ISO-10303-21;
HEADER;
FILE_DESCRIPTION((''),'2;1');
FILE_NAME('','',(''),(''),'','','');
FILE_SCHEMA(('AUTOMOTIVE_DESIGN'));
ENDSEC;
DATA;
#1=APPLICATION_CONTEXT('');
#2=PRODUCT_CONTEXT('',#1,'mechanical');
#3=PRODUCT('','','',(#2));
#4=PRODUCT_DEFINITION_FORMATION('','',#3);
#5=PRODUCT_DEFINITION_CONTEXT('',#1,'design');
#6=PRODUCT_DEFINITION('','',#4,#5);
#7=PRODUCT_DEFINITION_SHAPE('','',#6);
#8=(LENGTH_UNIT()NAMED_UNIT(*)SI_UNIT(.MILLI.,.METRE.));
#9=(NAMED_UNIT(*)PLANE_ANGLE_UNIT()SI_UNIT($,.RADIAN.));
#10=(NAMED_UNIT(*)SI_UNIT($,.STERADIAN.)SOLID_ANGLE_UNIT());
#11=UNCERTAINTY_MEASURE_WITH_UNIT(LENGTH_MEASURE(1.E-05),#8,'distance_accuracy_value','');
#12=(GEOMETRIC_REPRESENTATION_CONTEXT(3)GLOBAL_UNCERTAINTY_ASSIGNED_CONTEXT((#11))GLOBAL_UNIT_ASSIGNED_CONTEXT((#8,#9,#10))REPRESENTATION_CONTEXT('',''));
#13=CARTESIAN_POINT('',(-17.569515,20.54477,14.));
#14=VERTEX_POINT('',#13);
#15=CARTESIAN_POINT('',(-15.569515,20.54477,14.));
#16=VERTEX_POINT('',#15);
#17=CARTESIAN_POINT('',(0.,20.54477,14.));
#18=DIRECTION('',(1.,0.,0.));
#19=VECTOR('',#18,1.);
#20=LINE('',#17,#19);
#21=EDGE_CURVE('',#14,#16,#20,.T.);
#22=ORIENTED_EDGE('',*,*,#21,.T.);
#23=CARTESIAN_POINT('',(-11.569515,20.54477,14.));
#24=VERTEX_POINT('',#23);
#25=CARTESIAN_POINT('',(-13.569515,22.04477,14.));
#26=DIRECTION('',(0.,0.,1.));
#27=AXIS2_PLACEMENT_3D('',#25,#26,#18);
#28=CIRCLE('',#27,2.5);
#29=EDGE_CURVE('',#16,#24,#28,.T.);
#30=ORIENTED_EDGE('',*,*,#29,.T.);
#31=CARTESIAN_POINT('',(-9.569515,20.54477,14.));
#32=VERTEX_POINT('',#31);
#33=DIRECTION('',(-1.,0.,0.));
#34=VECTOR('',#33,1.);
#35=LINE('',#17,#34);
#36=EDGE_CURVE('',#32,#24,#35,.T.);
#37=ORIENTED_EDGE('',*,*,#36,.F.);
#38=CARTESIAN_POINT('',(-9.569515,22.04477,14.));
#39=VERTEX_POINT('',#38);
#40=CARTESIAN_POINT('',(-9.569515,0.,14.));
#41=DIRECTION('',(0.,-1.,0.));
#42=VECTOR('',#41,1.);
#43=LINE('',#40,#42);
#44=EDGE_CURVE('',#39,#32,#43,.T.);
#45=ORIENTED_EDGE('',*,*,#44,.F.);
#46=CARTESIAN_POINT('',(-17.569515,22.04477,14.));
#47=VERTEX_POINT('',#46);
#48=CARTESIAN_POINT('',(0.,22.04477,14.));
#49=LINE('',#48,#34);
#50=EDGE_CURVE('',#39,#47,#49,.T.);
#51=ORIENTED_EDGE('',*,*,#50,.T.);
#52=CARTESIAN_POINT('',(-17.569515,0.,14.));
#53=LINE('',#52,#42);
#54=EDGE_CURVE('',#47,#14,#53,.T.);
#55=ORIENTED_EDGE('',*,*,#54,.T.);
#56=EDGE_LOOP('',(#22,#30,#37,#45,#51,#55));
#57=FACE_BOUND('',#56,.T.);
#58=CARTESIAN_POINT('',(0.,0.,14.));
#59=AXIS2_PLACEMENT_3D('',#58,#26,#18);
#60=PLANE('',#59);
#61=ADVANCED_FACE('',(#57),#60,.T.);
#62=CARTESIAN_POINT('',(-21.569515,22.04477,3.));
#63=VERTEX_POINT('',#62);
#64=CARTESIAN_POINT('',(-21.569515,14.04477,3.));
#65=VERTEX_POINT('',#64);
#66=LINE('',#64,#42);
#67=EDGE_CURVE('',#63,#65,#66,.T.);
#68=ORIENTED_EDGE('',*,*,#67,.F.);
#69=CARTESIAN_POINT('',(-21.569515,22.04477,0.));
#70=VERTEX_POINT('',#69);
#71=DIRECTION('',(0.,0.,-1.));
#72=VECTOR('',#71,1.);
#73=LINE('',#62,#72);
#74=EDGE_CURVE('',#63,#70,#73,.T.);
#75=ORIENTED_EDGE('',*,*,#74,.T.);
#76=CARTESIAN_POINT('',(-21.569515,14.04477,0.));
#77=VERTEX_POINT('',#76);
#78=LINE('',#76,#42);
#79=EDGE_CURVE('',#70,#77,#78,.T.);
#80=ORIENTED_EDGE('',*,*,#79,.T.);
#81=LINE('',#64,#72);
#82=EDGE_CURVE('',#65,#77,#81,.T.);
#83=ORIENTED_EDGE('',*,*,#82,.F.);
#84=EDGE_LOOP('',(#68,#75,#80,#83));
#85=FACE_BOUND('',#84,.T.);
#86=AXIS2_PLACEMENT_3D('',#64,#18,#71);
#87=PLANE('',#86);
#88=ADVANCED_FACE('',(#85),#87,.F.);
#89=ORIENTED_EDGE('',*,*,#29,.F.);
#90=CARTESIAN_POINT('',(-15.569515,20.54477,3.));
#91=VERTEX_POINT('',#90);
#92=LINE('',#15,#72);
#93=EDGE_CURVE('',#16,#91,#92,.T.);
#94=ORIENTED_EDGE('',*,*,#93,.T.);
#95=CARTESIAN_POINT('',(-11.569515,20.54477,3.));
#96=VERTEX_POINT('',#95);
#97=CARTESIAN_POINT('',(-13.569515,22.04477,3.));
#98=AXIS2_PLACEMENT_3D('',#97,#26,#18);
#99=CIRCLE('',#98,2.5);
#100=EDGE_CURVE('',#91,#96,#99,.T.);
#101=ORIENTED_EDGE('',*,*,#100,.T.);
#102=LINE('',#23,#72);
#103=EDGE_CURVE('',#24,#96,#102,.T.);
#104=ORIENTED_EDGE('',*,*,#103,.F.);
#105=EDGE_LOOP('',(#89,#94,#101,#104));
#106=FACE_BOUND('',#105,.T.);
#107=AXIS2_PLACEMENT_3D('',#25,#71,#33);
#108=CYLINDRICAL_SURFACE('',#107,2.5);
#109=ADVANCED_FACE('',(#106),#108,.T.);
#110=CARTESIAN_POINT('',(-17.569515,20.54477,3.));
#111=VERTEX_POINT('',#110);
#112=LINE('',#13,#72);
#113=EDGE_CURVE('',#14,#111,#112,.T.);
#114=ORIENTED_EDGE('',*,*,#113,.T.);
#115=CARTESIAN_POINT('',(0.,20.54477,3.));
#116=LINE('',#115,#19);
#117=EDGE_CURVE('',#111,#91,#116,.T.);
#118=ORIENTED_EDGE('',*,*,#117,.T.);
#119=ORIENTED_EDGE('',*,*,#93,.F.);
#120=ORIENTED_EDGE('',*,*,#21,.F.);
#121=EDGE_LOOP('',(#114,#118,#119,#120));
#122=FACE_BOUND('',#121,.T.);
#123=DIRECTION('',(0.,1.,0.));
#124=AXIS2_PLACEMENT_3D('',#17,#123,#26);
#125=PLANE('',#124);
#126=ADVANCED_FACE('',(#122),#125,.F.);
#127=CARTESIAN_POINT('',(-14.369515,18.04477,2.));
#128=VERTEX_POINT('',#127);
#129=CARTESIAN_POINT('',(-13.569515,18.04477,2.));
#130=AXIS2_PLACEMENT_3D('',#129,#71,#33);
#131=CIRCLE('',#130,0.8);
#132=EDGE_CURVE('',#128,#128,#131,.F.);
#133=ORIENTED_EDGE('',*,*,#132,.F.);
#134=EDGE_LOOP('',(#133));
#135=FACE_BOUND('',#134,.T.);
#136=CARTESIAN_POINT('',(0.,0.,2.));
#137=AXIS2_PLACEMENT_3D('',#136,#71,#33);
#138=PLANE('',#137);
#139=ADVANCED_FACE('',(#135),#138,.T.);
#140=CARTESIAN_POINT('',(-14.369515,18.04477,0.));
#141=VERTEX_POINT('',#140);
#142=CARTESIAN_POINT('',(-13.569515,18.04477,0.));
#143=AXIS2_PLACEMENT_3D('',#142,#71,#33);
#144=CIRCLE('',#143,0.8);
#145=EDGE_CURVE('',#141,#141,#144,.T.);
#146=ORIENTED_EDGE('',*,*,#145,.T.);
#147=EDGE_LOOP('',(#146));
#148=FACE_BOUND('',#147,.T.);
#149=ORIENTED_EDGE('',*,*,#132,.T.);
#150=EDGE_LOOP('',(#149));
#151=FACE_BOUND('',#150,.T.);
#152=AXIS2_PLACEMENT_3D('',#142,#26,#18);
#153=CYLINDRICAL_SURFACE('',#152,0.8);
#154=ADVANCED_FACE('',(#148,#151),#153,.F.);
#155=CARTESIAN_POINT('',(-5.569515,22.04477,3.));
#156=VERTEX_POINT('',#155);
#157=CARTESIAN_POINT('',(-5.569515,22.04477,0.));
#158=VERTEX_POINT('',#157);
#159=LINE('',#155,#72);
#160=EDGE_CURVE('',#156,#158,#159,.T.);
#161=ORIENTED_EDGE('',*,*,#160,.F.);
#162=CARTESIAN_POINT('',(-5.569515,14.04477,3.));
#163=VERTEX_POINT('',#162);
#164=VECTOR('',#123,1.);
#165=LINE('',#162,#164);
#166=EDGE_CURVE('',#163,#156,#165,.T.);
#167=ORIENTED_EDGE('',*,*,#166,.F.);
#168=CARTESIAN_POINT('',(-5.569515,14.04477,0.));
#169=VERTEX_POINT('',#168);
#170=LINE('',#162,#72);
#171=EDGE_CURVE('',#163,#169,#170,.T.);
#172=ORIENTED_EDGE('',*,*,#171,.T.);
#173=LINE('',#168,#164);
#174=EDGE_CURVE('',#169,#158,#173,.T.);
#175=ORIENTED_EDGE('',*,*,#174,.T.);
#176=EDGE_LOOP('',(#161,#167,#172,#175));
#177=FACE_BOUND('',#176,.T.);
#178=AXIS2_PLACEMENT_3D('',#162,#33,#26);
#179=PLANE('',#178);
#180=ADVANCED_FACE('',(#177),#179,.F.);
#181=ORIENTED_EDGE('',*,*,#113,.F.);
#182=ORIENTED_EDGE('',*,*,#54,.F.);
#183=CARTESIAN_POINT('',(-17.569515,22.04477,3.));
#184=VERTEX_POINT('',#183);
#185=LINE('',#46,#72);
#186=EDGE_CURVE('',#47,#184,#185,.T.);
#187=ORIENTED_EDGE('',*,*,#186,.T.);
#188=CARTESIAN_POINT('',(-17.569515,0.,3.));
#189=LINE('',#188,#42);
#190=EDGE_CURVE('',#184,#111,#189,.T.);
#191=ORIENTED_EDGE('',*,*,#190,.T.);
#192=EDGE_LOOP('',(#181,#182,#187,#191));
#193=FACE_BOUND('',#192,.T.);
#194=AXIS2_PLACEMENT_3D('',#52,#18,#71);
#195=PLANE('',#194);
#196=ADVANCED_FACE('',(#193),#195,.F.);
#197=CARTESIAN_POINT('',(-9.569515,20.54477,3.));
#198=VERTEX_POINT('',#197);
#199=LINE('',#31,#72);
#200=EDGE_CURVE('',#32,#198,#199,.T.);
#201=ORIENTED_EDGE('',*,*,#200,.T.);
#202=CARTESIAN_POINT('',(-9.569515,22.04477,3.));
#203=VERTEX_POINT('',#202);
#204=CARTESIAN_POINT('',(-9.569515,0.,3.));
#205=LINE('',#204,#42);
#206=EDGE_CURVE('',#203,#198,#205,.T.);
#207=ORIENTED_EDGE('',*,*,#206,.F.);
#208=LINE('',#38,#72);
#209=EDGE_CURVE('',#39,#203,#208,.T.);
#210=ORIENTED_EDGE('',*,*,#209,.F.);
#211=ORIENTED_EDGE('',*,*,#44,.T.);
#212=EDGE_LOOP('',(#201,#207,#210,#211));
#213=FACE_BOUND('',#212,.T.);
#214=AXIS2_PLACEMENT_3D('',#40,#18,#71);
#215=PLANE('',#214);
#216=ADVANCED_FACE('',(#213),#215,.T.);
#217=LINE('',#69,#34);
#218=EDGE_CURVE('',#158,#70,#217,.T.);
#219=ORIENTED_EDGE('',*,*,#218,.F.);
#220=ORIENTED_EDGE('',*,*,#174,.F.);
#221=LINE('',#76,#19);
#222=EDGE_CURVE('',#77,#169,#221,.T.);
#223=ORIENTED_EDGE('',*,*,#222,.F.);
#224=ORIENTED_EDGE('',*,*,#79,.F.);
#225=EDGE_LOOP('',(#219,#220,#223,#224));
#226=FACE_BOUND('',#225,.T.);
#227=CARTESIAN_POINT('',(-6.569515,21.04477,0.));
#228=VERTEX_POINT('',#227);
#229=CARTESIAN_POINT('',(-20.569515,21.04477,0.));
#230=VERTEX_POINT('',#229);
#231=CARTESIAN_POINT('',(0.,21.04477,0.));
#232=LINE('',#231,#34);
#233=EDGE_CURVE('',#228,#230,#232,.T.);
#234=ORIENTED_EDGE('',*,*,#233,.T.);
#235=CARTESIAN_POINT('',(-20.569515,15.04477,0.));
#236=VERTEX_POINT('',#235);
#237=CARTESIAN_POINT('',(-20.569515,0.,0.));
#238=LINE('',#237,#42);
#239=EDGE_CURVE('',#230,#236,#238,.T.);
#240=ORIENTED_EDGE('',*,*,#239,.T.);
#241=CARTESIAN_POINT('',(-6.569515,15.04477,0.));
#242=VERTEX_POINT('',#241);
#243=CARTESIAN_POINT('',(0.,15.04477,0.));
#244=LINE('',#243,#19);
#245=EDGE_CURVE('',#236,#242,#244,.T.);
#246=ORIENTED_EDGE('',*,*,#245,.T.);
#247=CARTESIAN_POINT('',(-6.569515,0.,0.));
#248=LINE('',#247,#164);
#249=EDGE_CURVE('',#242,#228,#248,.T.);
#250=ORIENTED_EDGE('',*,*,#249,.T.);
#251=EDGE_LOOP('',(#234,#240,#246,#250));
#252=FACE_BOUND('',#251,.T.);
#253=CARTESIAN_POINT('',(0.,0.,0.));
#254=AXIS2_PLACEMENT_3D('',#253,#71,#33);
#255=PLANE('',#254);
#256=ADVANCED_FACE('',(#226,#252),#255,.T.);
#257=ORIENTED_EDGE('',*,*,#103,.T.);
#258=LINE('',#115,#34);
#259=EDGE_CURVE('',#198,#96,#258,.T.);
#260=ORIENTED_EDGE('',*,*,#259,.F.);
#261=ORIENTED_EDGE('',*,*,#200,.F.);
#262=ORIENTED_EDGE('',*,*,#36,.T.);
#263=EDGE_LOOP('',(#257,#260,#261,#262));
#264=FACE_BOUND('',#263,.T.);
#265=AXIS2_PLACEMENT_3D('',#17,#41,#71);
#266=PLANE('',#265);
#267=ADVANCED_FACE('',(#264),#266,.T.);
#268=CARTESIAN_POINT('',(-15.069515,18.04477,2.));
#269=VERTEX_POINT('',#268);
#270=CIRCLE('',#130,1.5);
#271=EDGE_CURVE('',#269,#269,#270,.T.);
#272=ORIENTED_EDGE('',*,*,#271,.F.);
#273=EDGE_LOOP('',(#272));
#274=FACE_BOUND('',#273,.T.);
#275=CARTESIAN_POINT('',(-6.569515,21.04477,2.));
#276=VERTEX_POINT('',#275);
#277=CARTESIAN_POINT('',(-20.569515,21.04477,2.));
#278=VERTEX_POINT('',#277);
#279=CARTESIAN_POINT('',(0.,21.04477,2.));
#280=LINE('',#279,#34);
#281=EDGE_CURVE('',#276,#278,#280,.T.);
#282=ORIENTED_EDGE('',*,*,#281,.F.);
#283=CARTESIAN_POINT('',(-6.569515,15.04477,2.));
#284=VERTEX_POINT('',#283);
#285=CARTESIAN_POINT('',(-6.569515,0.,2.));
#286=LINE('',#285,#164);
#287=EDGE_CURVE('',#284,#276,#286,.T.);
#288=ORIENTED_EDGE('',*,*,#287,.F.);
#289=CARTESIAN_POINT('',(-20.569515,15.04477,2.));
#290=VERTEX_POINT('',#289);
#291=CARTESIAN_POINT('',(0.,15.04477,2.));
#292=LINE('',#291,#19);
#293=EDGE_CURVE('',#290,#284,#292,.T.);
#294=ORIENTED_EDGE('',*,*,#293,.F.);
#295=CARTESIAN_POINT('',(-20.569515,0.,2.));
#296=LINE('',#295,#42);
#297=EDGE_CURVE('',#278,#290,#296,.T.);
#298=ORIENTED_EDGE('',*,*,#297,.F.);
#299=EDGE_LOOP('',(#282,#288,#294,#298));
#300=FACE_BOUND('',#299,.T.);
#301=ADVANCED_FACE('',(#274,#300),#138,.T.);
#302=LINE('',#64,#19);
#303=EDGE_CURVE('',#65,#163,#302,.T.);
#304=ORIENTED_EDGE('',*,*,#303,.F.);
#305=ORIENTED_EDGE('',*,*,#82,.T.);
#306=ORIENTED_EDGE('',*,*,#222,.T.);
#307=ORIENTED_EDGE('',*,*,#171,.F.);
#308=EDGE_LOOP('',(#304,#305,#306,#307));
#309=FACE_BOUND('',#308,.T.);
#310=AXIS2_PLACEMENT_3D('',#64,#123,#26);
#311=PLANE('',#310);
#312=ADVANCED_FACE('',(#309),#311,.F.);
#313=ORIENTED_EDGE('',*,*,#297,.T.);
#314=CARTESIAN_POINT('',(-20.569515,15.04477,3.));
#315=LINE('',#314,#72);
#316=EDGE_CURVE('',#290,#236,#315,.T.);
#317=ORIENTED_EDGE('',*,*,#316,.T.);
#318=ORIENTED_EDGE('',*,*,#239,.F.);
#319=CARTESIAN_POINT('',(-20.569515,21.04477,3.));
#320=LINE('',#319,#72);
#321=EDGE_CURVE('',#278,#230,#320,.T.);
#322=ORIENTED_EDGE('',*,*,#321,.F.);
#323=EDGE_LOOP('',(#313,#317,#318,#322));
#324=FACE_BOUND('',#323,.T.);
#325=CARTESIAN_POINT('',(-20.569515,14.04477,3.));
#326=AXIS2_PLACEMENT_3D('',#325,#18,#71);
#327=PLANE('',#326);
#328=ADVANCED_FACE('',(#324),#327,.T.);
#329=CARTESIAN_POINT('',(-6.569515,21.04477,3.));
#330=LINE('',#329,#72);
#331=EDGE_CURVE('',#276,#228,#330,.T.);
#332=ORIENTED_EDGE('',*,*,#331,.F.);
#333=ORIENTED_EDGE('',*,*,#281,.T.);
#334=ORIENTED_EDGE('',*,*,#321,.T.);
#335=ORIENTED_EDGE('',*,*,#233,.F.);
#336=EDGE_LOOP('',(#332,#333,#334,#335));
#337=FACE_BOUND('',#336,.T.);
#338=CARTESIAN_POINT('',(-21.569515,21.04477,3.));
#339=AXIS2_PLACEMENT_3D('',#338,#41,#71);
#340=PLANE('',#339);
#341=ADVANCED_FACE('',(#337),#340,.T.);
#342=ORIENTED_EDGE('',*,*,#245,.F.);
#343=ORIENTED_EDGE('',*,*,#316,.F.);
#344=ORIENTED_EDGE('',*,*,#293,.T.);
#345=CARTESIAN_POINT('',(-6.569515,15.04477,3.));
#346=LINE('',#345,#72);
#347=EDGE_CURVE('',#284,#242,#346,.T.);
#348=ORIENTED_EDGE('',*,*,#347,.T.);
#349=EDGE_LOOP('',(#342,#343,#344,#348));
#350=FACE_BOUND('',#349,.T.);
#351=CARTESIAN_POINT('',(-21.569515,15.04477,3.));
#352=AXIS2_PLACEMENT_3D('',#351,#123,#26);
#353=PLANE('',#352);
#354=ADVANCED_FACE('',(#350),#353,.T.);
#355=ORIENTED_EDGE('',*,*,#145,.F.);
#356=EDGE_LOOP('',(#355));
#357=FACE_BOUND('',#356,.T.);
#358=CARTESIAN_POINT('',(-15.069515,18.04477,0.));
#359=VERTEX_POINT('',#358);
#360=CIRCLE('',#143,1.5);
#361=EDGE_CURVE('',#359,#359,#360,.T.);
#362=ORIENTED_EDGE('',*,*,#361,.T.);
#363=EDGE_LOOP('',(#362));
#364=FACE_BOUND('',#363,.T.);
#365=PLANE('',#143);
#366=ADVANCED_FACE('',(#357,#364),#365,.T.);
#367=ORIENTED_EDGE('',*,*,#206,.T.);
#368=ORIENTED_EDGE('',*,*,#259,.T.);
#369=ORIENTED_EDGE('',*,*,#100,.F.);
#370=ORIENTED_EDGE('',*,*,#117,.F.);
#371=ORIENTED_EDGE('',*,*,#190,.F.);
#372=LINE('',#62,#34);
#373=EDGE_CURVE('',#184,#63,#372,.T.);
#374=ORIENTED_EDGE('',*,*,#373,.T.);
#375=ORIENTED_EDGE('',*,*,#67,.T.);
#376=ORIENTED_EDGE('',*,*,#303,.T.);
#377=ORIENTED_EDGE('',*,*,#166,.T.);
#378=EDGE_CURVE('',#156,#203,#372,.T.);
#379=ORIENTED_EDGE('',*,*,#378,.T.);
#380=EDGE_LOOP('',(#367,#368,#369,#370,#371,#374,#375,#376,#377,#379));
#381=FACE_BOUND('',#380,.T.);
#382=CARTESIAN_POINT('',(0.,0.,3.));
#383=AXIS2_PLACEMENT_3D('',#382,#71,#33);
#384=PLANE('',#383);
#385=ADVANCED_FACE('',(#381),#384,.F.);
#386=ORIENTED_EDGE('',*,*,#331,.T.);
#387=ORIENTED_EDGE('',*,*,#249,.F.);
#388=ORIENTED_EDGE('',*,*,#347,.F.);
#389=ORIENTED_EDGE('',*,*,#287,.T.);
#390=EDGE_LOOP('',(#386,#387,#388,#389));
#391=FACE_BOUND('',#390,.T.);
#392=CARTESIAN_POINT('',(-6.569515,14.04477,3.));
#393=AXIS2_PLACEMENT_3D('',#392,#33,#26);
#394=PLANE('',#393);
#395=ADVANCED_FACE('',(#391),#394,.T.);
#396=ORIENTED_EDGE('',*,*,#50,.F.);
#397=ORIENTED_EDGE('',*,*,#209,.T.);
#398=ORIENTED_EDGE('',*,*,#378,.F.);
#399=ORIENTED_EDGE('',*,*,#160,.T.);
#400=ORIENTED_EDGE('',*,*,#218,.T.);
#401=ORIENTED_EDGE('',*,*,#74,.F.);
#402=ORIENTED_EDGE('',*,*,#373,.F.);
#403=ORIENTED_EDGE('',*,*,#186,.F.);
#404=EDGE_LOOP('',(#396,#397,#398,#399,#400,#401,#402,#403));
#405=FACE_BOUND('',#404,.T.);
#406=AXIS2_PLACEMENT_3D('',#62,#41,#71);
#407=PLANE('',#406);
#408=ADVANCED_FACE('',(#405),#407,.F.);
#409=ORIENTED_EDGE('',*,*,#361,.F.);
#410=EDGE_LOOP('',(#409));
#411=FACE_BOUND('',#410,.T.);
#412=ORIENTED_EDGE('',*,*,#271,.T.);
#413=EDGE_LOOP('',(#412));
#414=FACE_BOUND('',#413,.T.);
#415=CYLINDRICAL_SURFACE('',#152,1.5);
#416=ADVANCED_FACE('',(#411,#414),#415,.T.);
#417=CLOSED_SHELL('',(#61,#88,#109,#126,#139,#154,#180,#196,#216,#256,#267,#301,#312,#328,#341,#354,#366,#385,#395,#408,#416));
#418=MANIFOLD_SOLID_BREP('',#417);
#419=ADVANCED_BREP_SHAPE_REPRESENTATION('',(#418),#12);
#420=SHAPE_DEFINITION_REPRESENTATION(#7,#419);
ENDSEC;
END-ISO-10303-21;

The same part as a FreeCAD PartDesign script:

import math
import FreeCAD as App
import Part
import Sketcher
from FreeCAD import Vector
Q = App.Units.Quantity


def faces_at(feature, points):
    """Names of the faces that lie closest to the given points."""
    faces = feature.Shape.Faces
    near = lambda p: min(range(len(faces)), key=lambda i: faces[i].distToShape(Part.Vertex(*p))[0])
    return sorted({f"Face{near(p) + 1}" for p in points})


def add_polygon(sketch, points):
    """Adds a closed chain of lines whose ends are joined by coincident constraints."""
    first, n = sketch.GeometryCount, len(points)
    for a, b in zip(points, points[1:] + points[:1]):
        sketch.addGeometry(Part.LineSegment(App.Vector(*a, 0), App.Vector(*b, 0)), False)
    for i in range(n):
        sketch.addConstraint(Sketcher.Constraint("Coincident", first + i, 2, first + (i + 1) % n, 1))

doc = App.newDocument("Part")
params = doc.addObject("Spreadsheet::Sheet", "Params")
for row, (alias, value) in enumerate([
    ("sketch1_width", "16 mm"),
    ("sketch1_height", "8 mm"),
    ("pad1_length", "3 mm"),
    ("thickness_wall", "1 mm"),
    ("sketch2_diameter", "3 mm"),
    ("sketch2_diameter2", "1.6 mm"),
    ("pad2_length", "2 mm"),
    ("sketch3_radius", "2.5 mm"),
    ("sketch3_width", "2 mm"),
    ("sketch3_width2", "8 mm"),
    ("pad3_length", "11 mm"),
], start=1):
    params.set(f"A{row}", alias)
    params.set(f"B{row}", "=" + value)
    params.setAlias(f"B{row}", alias)

body = doc.addObject("PartDesign::Body", "Body")

sketch1 = body.newObject("Sketcher::SketchObject", "Sketch")
sketch1.AttachmentSupport = (doc.getObject("XY_Plane"), [""])
sketch1.MapMode = "FlatFace"
add_polygon(sketch1, [(-21.569515, 22.04477), (-21.569515, 14.04477), (-5.569515, 14.04477), (-5.569515, 22.04477)])
sketch1.addConstraint(Sketcher.Constraint("Vertical", 0))
sketch1.addConstraint(Sketcher.Constraint("Horizontal", 1))
sketch1.addConstraint(Sketcher.Constraint("Vertical", 2))
sketch1.addConstraint(Sketcher.Constraint("Horizontal", 3))
sketch1.addConstraint(Sketcher.Constraint("DistanceX", 1, 1, 1, 2, Q("16 mm")))
sketch1.addConstraint(Sketcher.Constraint("DistanceY", 0, 2, 0, 1, Q("8 mm")))
sketch1.addConstraint(Sketcher.Constraint("DistanceY", -1, 1, 0, 2, Q("14.04477 mm")))
sketch1.addConstraint(Sketcher.Constraint("DistanceX", 0, 2, -1, 1, Q("21.569515 mm")))
sketch1.setExpression("Constraints[8]", "Params.sketch1_width")
sketch1.setExpression("Constraints[9]", "Params.sketch1_height")
pad1 = body.newObject("PartDesign::Pad", "Pad")
pad1.Profile = sketch1
pad1.setExpression("Length", "Params.pad1_length")
doc.recompute()

thickness = body.newObject("PartDesign::Thickness", "Thickness")
thickness.Base = (pad1, faces_at(pad1, [(-13.57, 18.045, 0)]))
thickness.setExpression("Value", "Params.thickness_wall")
thickness.Reversed = True
thickness.Join = "Intersection"

sketch2 = body.newObject("Sketcher::SketchObject", "Sketch001")
sketch2.AttachmentSupport = (doc.getObject("XY_Plane"), [""])
sketch2.MapMode = "FlatFace"
sketch2.AttachmentOffset = App.Placement(Vector(0, 0, 2), App.Rotation())
sketch2.addGeometry(Part.Circle(Vector(-13.569515, 18.04477, 0), Vector(0, 0, 1), 1.5), False)
sketch2.addGeometry(Part.Circle(Vector(-13.569515, 18.04477, 0), Vector(0, 0, 1), 0.8), False)
sketch2.addConstraint(Sketcher.Constraint("Coincident", 1, 3, 0, 3))
sketch2.addConstraint(Sketcher.Constraint("Diameter", 0, Q("3 mm")))
sketch2.addConstraint(Sketcher.Constraint("Diameter", 1, Q("1.6 mm")))
sketch2.addConstraint(Sketcher.Constraint("DistanceY", -1, 1, 0, 3, Q("18.04477 mm")))
sketch2.addConstraint(Sketcher.Constraint("DistanceX", 0, 3, -1, 1, Q("13.569515 mm")))
sketch2.setExpression("Constraints[1]", "Params.sketch2_diameter")
sketch2.setExpression("Constraints[2]", "Params.sketch2_diameter2")
pad2 = body.newObject("PartDesign::Pad", "Pad001")
pad2.Profile = sketch2
pad2.setExpression("Length", "Params.pad2_length")
pad2.Reversed = True

sketch3 = body.newObject("Sketcher::SketchObject", "Sketch002")
sketch3.AttachmentSupport = (doc.getObject("XY_Plane"), [""])
sketch3.MapMode = "FlatFace"
sketch3.AttachmentOffset = App.Placement(Vector(0, 0, 3), App.Rotation())
sketch3.addGeometry(Part.LineSegment(Vector(-17.569515, 22.04477, 0), Vector(-17.569515, 20.54477, 0)), False)
sketch3.addGeometry(Part.LineSegment(Vector(-17.569515, 20.54477, 0), Vector(-15.569515, 20.54477, 0)), False)
sketch3.addGeometry(Part.ArcOfCircle(Part.Circle(Vector(-13.569515, 22.04477, 0), Vector(0, 0, 1), 2.5), math.radians(-143.130102), math.radians(-36.869898)), False)
sketch3.addGeometry(Part.LineSegment(Vector(-11.569515, 20.54477, 0), Vector(-9.569515, 20.54477, 0)), False)
sketch3.addGeometry(Part.LineSegment(Vector(-9.569515, 20.54477, 0), Vector(-9.569515, 22.04477, 0)), False)
sketch3.addGeometry(Part.LineSegment(Vector(-9.569515, 22.04477, 0), Vector(-17.569515, 22.04477, 0)), False)
sketch3.addConstraint(Sketcher.Constraint("Coincident", 0, 2, 1, 1))
sketch3.addConstraint(Sketcher.Constraint("Coincident", 1, 2, 2, 1))
sketch3.addConstraint(Sketcher.Constraint("Coincident", 2, 2, 3, 1))
sketch3.addConstraint(Sketcher.Constraint("Coincident", 3, 2, 4, 1))
sketch3.addConstraint(Sketcher.Constraint("Coincident", 4, 2, 5, 1))
sketch3.addConstraint(Sketcher.Constraint("Coincident", 5, 2, 0, 1))
sketch3.addConstraint(Sketcher.Constraint("Vertical", 0))
sketch3.addConstraint(Sketcher.Constraint("Horizontal", 1))
sketch3.addConstraint(Sketcher.Constraint("Horizontal", 3))
sketch3.addConstraint(Sketcher.Constraint("Vertical", 4))
sketch3.addConstraint(Sketcher.Constraint("Horizontal", 5))
sketch3.addConstraint(Sketcher.Constraint("Horizontal", 1, 2, 2, 2))
sketch3.addConstraint(Sketcher.Constraint("Horizontal", 2, 3, 4, 2))
sketch3.addConstraint(Sketcher.Constraint("Equal", 1, 3))
sketch3.addConstraint(Sketcher.Constraint("Radius", 2, Q("2.5 mm")))
sketch3.addConstraint(Sketcher.Constraint("DistanceX", 1, 1, 1, 2, Q("2 mm")))
sketch3.addConstraint(Sketcher.Constraint("DistanceX", 5, 2, 5, 1, Q("8 mm")))
sketch3.addConstraint(Sketcher.Constraint("DistanceY", -1, 1, 2, 3, Q("22.04477 mm")))
sketch3.addConstraint(Sketcher.Constraint("DistanceX", 2, 3, -1, 1, Q("13.569515 mm")))
sketch3.setExpression("Constraints[14]", "Params.sketch3_radius")
sketch3.setExpression("Constraints[15]", "Params.sketch3_width")
sketch3.setExpression("Constraints[16]", "Params.sketch3_width2")
pad3 = body.newObject("PartDesign::Pad", "Pad002")
pad3.Profile = sketch3
pad3.setExpression("Length", "Params.pad3_length")

doc.recompute()
